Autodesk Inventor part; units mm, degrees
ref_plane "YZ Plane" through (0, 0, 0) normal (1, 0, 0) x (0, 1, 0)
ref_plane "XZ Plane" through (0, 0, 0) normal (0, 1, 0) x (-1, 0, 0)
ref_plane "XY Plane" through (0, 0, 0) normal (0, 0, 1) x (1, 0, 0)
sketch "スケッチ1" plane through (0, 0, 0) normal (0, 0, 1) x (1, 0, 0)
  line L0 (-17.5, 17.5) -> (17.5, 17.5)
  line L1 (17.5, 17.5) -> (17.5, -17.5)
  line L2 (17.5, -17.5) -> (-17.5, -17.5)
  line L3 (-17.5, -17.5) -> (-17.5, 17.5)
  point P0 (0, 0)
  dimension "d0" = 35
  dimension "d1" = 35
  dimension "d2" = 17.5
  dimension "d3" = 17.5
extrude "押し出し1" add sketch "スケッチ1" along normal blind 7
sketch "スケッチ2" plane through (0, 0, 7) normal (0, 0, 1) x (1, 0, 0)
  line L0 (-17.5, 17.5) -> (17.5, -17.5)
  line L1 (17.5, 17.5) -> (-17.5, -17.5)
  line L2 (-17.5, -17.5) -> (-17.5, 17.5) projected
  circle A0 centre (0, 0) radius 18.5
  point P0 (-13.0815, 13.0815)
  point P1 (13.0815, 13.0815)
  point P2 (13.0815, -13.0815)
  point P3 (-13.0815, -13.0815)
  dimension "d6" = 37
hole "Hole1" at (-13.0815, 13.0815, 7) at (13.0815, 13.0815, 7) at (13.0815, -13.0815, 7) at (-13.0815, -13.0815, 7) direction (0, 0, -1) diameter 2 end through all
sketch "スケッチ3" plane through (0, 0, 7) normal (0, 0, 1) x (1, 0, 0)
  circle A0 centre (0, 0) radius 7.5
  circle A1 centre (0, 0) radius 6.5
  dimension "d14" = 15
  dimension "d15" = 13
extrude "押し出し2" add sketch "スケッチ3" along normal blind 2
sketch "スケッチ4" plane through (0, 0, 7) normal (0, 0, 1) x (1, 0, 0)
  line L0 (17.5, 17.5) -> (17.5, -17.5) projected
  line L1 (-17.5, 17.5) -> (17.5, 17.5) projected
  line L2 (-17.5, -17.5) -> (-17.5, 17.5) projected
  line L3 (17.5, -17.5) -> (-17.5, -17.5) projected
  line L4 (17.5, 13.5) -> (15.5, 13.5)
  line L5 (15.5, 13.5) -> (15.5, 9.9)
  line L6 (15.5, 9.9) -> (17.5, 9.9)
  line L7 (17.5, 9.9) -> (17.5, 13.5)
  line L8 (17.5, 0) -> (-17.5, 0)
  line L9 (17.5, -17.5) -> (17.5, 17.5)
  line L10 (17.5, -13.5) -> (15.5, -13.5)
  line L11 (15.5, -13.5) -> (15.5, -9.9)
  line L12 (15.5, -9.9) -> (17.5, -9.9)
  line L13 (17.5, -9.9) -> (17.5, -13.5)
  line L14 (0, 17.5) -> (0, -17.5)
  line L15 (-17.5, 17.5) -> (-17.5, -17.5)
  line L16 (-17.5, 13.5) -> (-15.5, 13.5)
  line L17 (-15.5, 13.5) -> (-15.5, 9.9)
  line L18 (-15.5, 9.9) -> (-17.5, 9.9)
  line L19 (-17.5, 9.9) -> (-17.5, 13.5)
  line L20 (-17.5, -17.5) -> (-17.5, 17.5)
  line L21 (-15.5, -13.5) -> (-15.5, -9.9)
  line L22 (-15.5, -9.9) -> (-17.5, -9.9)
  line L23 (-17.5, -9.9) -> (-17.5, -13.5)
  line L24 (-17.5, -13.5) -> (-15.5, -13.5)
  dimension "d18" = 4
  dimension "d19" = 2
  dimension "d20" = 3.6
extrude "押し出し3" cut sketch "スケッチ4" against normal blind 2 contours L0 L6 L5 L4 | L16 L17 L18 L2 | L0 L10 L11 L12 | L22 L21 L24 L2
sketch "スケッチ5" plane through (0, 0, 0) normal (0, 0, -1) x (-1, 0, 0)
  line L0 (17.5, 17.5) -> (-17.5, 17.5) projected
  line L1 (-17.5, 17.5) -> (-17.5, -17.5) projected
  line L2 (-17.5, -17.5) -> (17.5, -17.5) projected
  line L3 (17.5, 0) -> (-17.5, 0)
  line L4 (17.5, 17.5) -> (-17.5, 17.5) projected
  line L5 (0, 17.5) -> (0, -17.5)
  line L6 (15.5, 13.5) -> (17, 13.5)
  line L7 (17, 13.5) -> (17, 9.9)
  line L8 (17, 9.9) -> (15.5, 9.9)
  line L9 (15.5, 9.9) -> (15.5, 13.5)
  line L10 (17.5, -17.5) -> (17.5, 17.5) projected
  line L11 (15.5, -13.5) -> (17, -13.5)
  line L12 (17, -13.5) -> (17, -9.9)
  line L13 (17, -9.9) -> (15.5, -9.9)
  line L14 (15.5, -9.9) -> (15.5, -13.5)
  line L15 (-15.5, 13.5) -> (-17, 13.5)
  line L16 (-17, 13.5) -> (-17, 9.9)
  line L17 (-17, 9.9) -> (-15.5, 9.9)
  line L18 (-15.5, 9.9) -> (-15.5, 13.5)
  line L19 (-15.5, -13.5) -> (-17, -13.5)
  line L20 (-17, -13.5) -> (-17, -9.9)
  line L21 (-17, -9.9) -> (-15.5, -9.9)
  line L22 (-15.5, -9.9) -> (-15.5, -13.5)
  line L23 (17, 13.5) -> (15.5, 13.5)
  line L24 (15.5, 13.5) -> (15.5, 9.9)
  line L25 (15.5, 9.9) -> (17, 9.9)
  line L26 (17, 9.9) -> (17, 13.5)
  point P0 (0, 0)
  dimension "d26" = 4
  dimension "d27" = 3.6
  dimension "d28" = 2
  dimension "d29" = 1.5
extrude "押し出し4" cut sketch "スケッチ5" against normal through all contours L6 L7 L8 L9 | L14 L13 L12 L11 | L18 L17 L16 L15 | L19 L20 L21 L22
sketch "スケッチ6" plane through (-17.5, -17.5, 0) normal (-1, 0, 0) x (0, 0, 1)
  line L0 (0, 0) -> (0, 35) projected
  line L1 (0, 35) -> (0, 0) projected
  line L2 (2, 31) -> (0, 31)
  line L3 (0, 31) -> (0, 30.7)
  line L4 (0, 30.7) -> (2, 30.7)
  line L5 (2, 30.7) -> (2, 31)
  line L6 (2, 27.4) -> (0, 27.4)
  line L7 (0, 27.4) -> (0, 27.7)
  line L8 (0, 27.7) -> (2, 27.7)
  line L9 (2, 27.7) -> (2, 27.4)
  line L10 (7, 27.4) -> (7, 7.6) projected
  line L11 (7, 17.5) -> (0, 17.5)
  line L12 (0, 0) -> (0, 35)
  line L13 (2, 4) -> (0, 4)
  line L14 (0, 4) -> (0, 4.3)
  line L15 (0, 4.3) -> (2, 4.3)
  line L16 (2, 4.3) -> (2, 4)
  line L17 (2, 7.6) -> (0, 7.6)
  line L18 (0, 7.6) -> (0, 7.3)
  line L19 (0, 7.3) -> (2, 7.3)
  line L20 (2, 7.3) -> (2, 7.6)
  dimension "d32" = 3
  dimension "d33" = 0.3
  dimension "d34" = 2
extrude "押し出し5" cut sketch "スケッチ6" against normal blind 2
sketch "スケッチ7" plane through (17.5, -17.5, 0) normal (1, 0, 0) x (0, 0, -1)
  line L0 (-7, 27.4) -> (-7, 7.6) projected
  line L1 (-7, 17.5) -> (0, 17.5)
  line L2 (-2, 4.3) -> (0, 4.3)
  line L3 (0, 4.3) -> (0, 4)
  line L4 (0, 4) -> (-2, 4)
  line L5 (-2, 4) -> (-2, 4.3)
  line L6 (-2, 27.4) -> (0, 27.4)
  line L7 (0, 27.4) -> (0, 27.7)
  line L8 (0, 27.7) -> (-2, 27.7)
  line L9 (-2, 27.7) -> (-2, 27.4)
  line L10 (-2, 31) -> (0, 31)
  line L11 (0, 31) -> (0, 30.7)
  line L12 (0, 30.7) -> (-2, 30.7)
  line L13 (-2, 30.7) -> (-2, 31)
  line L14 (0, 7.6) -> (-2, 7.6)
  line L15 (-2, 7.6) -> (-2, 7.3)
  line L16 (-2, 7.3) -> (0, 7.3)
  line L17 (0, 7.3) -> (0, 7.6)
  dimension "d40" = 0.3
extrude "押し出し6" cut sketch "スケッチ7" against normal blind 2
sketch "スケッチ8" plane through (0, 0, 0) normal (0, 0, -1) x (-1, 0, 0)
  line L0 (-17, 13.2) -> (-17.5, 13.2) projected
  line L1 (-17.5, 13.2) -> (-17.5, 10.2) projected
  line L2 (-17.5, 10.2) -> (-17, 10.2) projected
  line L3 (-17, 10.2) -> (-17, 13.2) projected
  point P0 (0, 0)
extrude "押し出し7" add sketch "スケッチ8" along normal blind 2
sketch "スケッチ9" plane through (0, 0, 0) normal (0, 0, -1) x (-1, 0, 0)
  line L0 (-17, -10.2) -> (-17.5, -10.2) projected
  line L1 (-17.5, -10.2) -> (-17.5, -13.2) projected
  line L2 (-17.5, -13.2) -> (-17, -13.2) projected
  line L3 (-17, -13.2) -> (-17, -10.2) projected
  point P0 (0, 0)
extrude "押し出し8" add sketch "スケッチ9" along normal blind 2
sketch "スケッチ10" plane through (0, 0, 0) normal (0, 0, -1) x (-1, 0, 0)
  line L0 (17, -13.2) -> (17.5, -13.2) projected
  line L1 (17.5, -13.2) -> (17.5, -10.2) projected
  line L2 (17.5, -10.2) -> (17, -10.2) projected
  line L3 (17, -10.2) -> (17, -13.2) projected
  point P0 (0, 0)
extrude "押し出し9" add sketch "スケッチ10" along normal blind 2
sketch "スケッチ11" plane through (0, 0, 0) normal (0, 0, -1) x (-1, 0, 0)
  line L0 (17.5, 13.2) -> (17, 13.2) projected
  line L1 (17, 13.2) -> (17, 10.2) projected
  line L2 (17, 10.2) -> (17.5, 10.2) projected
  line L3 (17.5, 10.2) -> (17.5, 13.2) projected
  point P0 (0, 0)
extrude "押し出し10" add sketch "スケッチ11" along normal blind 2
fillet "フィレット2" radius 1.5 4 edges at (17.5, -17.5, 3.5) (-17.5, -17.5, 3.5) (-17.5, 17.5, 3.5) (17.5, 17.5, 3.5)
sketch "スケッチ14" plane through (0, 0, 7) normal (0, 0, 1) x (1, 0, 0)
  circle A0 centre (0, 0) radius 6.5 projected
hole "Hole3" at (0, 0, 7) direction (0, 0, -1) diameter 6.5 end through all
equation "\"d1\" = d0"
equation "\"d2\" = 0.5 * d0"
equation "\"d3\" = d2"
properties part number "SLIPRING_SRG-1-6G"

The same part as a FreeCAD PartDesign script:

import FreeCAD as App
import Part
import Sketcher
Q = App.Units.Quantity


def edges_at(feature, points):
    """Names of the edges that pass closest to the given points."""
    edges = feature.Shape.Edges
    near = lambda p: min(range(len(edges)), key=lambda i: edges[i].distToShape(Part.Vertex(*p))[0])
    return sorted({f"Edge{near(p) + 1}" for p in points})

doc = App.newDocument("Part")
params = doc.addObject("Spreadsheet::Sheet", "Params")
for row, (alias, value) in enumerate([
    ("sketch1_width", "35 mm"),
    ("pad1_length", "7 mm"),
    ("sketch2_diameter", "2 mm"),
    ("hole_diameter", "2 mm"),
    ("sketch3_diameter", "15 mm"),
    ("sketch3_diameter2", "13 mm"),
    ("pad2_length", "2 mm"),
    ("sketch4_width", "2 mm"),
    ("sketch4_height", "3.6 mm"),
    ("pocket1_length", "2 mm"),
    ("sketch5_width", "1.5 mm"),
    ("sketch5_height", "3.6 mm"),
    ("sketch6_height", "2 mm"),
    ("sketch6_width", "0.3 mm"),
    ("pocket3_length", "2 mm"),
    ("sketch7_width", "0.3 mm"),
    ("sketch7_height", "2 mm"),
    ("pocket4_length", "2 mm"),
    ("sketch8_height", "3 mm"),
    ("sketch8_width", "0.5 mm"),
    ("pad3_length", "2 mm"),
    ("sketch9_height", "3 mm"),
    ("sketch9_width", "0.5 mm"),
    ("pad4_length", "2 mm"),
    ("sketch10_height", "3 mm"),
    ("sketch10_width", "0.5 mm"),
    ("pad5_length", "2 mm"),
    ("sketch11_height", "3 mm"),
    ("sketch11_width", "0.5 mm"),
    ("pad6_length", "2 mm"),
    ("fillet_radius", "1.5 mm"),
    ("sketch12_diameter", "6.5 mm"),
    ("hole2_diameter", "6.5 mm"),
], start=1):
    params.set(f"A{row}", alias)
    params.set(f"B{row}", "=" + value)
    params.setAlias(f"B{row}", alias)

body = doc.addObject("PartDesign::Body", "Body")

# Sketch on XY plane
sketch1 = body.newObject("Sketcher::SketchObject", "Sketch")
sketch1.AttachmentSupport = (doc.getObject("XY_Plane"), [""])
sketch1.MapMode = "FlatFace"
sketch1.addGeometry([
    Part.LineSegment(App.Vector(18, 18, 0), App.Vector(-18, 18, 0)),
    Part.LineSegment(App.Vector(-18, 18, 0), App.Vector(-18, -18, 0)),
    Part.LineSegment(App.Vector(-18, -18, 0), App.Vector(18, -18, 0)),
    Part.LineSegment(App.Vector(18, -18, 0), App.Vector(18, 18, 0)),
], False)
sketch1.addConstraint([
    Sketcher.Constraint("Coincident", 0, 2, 1, 1),
    Sketcher.Constraint("Coincident", 1, 2, 2, 1),
    Sketcher.Constraint("Coincident", 2, 2, 3, 1),
    Sketcher.Constraint("Coincident", 3, 2, 0, 1),
    Sketcher.Constraint("Horizontal", 0),
    Sketcher.Constraint("Vertical", 1),
    Sketcher.Constraint("Horizontal", 2),
    Sketcher.Constraint("Vertical", 3),
    Sketcher.Constraint("Symmetric", 0, 2, 2, 2, -1, 1),
    Sketcher.Constraint("Equal", 2, 1),
    Sketcher.Constraint("DistanceX", 0, 2, 0, 1, Q("35 mm")),
])
sketch1.setExpression("Constraints[10]", "Params.sketch1_width")
pad1 = body.newObject("PartDesign::Pad", "Pad")
pad1.Profile = sketch1
pad1.setExpression("Length", "Params.pad1_length")

# Sketch on XY plane
sketch2 = body.newObject("Sketcher::SketchObject", "Sketch001")
sketch2.AttachmentSupport = (doc.getObject("XY_Plane"), [""])
sketch2.MapMode = "FlatFace"
sketch2.AttachmentOffset = App.Placement(App.Vector(0, 0, 7), App.Rotation())
sketch2.addGeometry([
    Part.Circle(App.Vector(-13.1, 13.1, 0), App.Vector(0, 0, 1), 1),
    Part.Circle(App.Vector(13.1, 13.1, 0), App.Vector(0, 0, 1), 1),
    Part.Circle(App.Vector(13.1, -13.1, 0), App.Vector(0, 0, 1), 1),
    Part.Circle(App.Vector(-13.1, -13.1, 0), App.Vector(0, 0, 1), 1),
], False)
sketch2.addConstraint([
    Sketcher.Constraint("Equal", 0, 1),
    Sketcher.Constraint("Equal", 1, 2),
    Sketcher.Constraint("Equal", 2, 3),
    Sketcher.Constraint("Symmetric", 0, 3, 2, 3, -1, 1),
    Sketcher.Constraint("Symmetric", 1, 3, 3, 3, -1, 1),
    Sketcher.Constraint("Symmetric", 0, 3, 1, 3, -2),
    Sketcher.Constraint("Diameter", 0, Q("2 mm")),
    Sketcher.Constraint("DistanceX", 0, 3, 1, 3, Q("26.163 mm")),
    Sketcher.Constraint("DistanceY", 2, 3, 1, 3, Q("26.163 mm")),
])
sketch2.setExpression("Constraints[6]", "Params.sketch2_diameter")
doc.recompute()
hole = body.newObject("PartDesign::Hole", "Hole")
hole.Profile = sketch2
hole.ThreadType = "None"
hole.setExpression("Diameter", "Params.hole_diameter")
hole.DepthType = "ThroughAll"

# Sketch on XY plane
sketch3 = body.newObject("Sketcher::SketchObject", "Sketch002")
sketch3.AttachmentSupport = (doc.getObject("XY_Plane"), [""])
sketch3.MapMode = "FlatFace"
sketch3.AttachmentOffset = App.Placement(App.Vector(0, 0, 7), App.Rotation())
sketch3.addGeometry([
    Part.Circle(App.Vector(0, 0, 0), App.Vector(0, 0, 1), 8),
    Part.Circle(App.Vector(0, 0, 0), App.Vector(0, 0, 1), 6),
], False)
sketch3.addConstraint([
    Sketcher.Constraint("Coincident", 0, 3, -1, 1),
    Sketcher.Constraint("Coincident", 1, 3, -1, 1),
    Sketcher.Constraint("Diameter", 0, Q("15 mm")),
    Sketcher.Constraint("Diameter", 1, Q("13 mm")),
])
sketch3.setExpression("Constraints[2]", "Params.sketch3_diameter")
sketch3.setExpression("Constraints[3]", "Params.sketch3_diameter2")
pad2 = body.newObject("PartDesign::Pad", "Pad001")
pad2.Profile = sketch3
pad2.setExpression("Length", "Params.pad2_length")

# Sketch on XY plane
sketch4 = body.newObject("Sketcher::SketchObject", "Sketch003")
sketch4.AttachmentSupport = (doc.getObject("XY_Plane"), [""])
sketch4.MapMode = "FlatFace"
sketch4.AttachmentOffset = App.Placement(App.Vector(0, 0, 7), App.Rotation())
sketch4.addGeometry([
    Part.LineSegment(App.Vector(17.5, 9.9, 0), App.Vector(17.5, 13.5, 0)),  # 0
    Part.LineSegment(App.Vector(17.5, 13.5, 0), App.Vector(15.5, 13.5, 0)),  # 1
    Part.LineSegment(App.Vector(15.5, 13.5, 0), App.Vector(15.5, 9.9, 0)),  # 2
    Part.LineSegment(App.Vector(15.5, 9.9, 0), App.Vector(17.5, 9.9, 0)),  # 3
    Part.LineSegment(App.Vector(-15.5, 13.5, 0), App.Vector(-17.5, 13.5, 0)),  # 4
    Part.LineSegment(App.Vector(-17.5, 13.5, 0), App.Vector(-17.5, 9.9, 0)),  # 5
    Part.LineSegment(App.Vector(-17.5, 9.9, 0), App.Vector(-15.5, 9.9, 0)),  # 6
    Part.LineSegment(App.Vector(-15.5, 9.9, 0), App.Vector(-15.5, 13.5, 0)),  # 7
    Part.LineSegment(App.Vector(17.5, -13.5, 0), App.Vector(17.5, -9.9, 0)),  # 8
    Part.LineSegment(App.Vector(17.5, -9.9, 0), App.Vector(15.5, -9.9, 0)),  # 9
    Part.LineSegment(App.Vector(15.5, -9.9, 0), App.Vector(15.5, -13.5, 0)),  # 10
    Part.LineSegment(App.Vector(15.5, -13.5, 0), App.Vector(17.5, -13.5, 0)),  # 11
    Part.LineSegment(App.Vector(-15.5, -9.9, 0), App.Vector(-17.5, -9.9, 0)),  # 12
    Part.LineSegment(App.Vector(-17.5, -9.9, 0), App.Vector(-17.5, -13.5, 0)),  # 13
    Part.LineSegment(App.Vector(-17.5, -13.5, 0), App.Vector(-15.5, -13.5, 0)),  # 14
    Part.LineSegment(App.Vector(-15.5, -13.5, 0), App.Vector(-15.5, -9.9, 0)),  # 15
], False)
sketch4.addConstraint([
    Sketcher.Constraint("Coincident", 0, 2, 1, 1),
    Sketcher.Constraint("Coincident", 1, 2, 2, 1),
    Sketcher.Constraint("Coincident", 2, 2, 3, 1),
    Sketcher.Constraint("Coincident", 3, 2, 0, 1),
    Sketcher.Constraint("Coincident", 4, 2, 5, 1),
    Sketcher.Constraint("Coincident", 5, 2, 6, 1),
    Sketcher.Constraint("Coincident", 6, 2, 7, 1),
    Sketcher.Constraint("Coincident", 7, 2, 4, 1),
    Sketcher.Constraint("Coincident", 8, 2, 9, 1),
    Sketcher.Constraint("Coincident", 9, 2, 10, 1),
    Sketcher.Constraint("Coincident", 10, 2, 11, 1),
    Sketcher.Constraint("Coincident", 11, 2, 8, 1),
    Sketcher.Constraint("Coincident", 12, 2, 13, 1),
    Sketcher.Constraint("Coincident", 13, 2, 14, 1),
    Sketcher.Constraint("Coincident", 14, 2, 15, 1),
    Sketcher.Constraint("Coincident", 15, 2, 12, 1),
    Sketcher.Constraint("Vertical", 0),
    Sketcher.Constraint("Horizontal", 1),
    Sketcher.Constraint("Vertical", 2),
    Sketcher.Constraint("Horizontal", 3),
    Sketcher.Constraint("Horizontal", 4),
    Sketcher.Constraint("Vertical", 5),
    Sketcher.Constraint("Horizontal", 6),
    Sketcher.Constraint("Vertical", 7),
    Sketcher.Constraint("Vertical", 8),
    Sketcher.Constraint("Horizontal", 9),
    Sketcher.Constraint("Vertical", 10),
    Sketcher.Constraint("Horizontal", 11),
    Sketcher.Constraint("Horizontal", 12),
    Sketcher.Constraint("Vertical", 13),
    Sketcher.Constraint("Horizontal", 14),
    Sketcher.Constraint("Vertical", 15),
    Sketcher.Constraint("Symmetric", 5, 2, 8, 2, -1, 1),
    Sketcher.Constraint("Symmetric", 7, 2, 10, 2, -1, 1),
    Sketcher.Constraint("Symmetric", 3, 2, 12, 2, -1, 1),
    Sketcher.Constraint("Symmetric", 1, 2, 14, 2, -1, 1),
    Sketcher.Constraint("Symmetric", 0, 2, 4, 2, -2),
    Sketcher.Constraint("Symmetric", 2, 2, 6, 2, -2),
    Sketcher.Constraint("DistanceX", 1, 2, 1, 1, Q("2 mm")),
    Sketcher.Constraint("DistanceY", 0, 1, 0, 2, Q("3.6 mm")),
    Sketcher.Constraint("DistanceX", 4, 2, 1, 2, Q("33 mm")),
    Sketcher.Constraint("DistanceY", 10, 2, 1, 2, Q("27 mm")),
])
sketch4.setExpression("Constraints[38]", "Params.sketch4_width")
sketch4.setExpression("Constraints[39]", "Params.sketch4_height")
pocket1 = body.newObject("PartDesign::Pocket", "Pocket")
pocket1.Profile = sketch4
pocket1.setExpression("Length", "Params.pocket1_length")

# Sketch on XY plane
sketch5 = body.newObject("Sketcher::SketchObject", "Sketch004")
sketch5.AttachmentSupport = (doc.getObject("XY_Plane"), [""])
sketch5.MapMode = "FlatFace"
sketch5.addGeometry([
    Part.LineSegment(App.Vector(-17, 13.5, 0), App.Vector(-15.5, 13.5, 0)),  # 0
    Part.LineSegment(App.Vector(-15.5, 13.5, 0), App.Vector(-15.5, 9.9, 0)),  # 1
    Part.LineSegment(App.Vector(-15.5, 9.9, 0), App.Vector(-17, 9.9, 0)),  # 2
    Part.LineSegment(App.Vector(-17, 9.9, 0), App.Vector(-17, 13.5, 0)),  # 3
    Part.LineSegment(App.Vector(-15.5, -9.9, 0), App.Vector(-15.5, -13.5, 0)),  # 4
    Part.LineSegment(App.Vector(-15.5, -13.5, 0), App.Vector(-17, -13.5, 0)),  # 5
    Part.LineSegment(App.Vector(-17, -13.5, 0), App.Vector(-17, -9.9, 0)),  # 6
    Part.LineSegment(App.Vector(-17, -9.9, 0), App.Vector(-15.5, -9.9, 0)),  # 7
    Part.LineSegment(App.Vector(15.5, 9.9, 0), App.Vector(15.5, 13.5, 0)),  # 8
    Part.LineSegment(App.Vector(15.5, 13.5, 0), App.Vector(17, 13.5, 0)),  # 9
    Part.LineSegment(App.Vector(17, 13.5, 0), App.Vector(17, 9.9, 0)),  # 10
    Part.LineSegment(App.Vector(17, 9.9, 0), App.Vector(15.5, 9.9, 0)),  # 11
    Part.LineSegment(App.Vector(17, -13.5, 0), App.Vector(15.5, -13.5, 0)),  # 12
    Part.LineSegment(App.Vector(15.5, -13.5, 0), App.Vector(15.5, -9.9, 0)),  # 13
    Part.LineSegment(App.Vector(15.5, -9.9, 0), App.Vector(17, -9.9, 0)),  # 14
    Part.LineSegment(App.Vector(17, -9.9, 0), App.Vector(17, -13.5, 0)),  # 15
], False)
sketch5.addConstraint([
    Sketcher.Constraint("Coincident", 0, 2, 1, 1),
    Sketcher.Constraint("Coincident", 1, 2, 2, 1),
    Sketcher.Constraint("Coincident", 2, 2, 3, 1),
    Sketcher.Constraint("Coincident", 3, 2, 0, 1),
    Sketcher.Constraint("Coincident", 4, 2, 5, 1),
    Sketcher.Constraint("Coincident", 5, 2, 6, 1),
    Sketcher.Constraint("Coincident", 6, 2, 7, 1),
    Sketcher.Constraint("Coincident", 7, 2, 4, 1),
    Sketcher.Constraint("Coincident", 8, 2, 9, 1),
    Sketcher.Constraint("Coincident", 9, 2, 10, 1),
    Sketcher.Constraint("Coincident", 10, 2, 11, 1),
    Sketcher.Constraint("Coincident", 11, 2, 8, 1),
    Sketcher.Constraint("Coincident", 12, 2, 13, 1),
    Sketcher.Constraint("Coincident", 13, 2, 14, 1),
    Sketcher.Constraint("Coincident", 14, 2, 15, 1),
    Sketcher.Constraint("Coincident", 15, 2, 12, 1),
    Sketcher.Constraint("Horizontal", 0),
    Sketcher.Constraint("Vertical", 1),
    Sketcher.Constraint("Horizontal", 2),
    Sketcher.Constraint("Vertical", 3),
    Sketcher.Constraint("Vertical", 4),
    Sketcher.Constraint("Horizontal", 5),
    Sketcher.Constraint("Vertical", 6),
    Sketcher.Constraint("Horizontal", 7),
    Sketcher.Constraint("Vertical", 8),
    Sketcher.Constraint("Horizontal", 9),
    Sketcher.Constraint("Vertical", 10),
    Sketcher.Constraint("Horizontal", 11),
    Sketcher.Constraint("Horizontal", 12),
    Sketcher.Constraint("Vertical", 13),
    Sketcher.Constraint("Horizontal", 14),
    Sketcher.Constraint("Vertical", 15),
    Sketcher.Constraint("Symmetric", 4, 2, 8, 2, -1, 1),
    Sketcher.Constraint("Symmetric", 6, 2, 10, 2, -1, 1),
    Sketcher.Constraint("Symmetric", 0, 2, 12, 2, -1, 1),
    Sketcher.Constraint("Symmetric", 2, 2, 14, 2, -1, 1),
    Sketcher.Constraint("Symmetric", 0, 2, 8, 2, -2),
    Sketcher.Constraint("Symmetric", 2, 2, 10, 2, -2),
    Sketcher.Constraint("DistanceX", 0, 1, 0, 2, Q("1.5 mm")),
    Sketcher.Constraint("DistanceY", 1, 2, 1, 1, Q("3.6 mm")),
    Sketcher.Constraint("DistanceX", 2, 2, -1, 1, Q("17 mm")),
    Sketcher.Constraint("DistanceY", 4, 2, 0, 2, Q("27 mm")),
])
sketch5.setExpression("Constraints[38]", "Params.sketch5_width")
sketch5.setExpression("Constraints[39]", "Params.sketch5_height")
pocket2 = body.newObject("PartDesign::Pocket", "Pocket001")
pocket2.Profile = sketch5
pocket2.Type = "ThroughAll"
pocket2.Reversed = True

# Sketch on YZ plane
sketch6 = body.newObject("Sketcher::SketchObject", "Sketch005")
sketch6.AttachmentSupport = (doc.getObject("YZ_Plane"), [""])
sketch6.MapMode = "FlatFace"
sketch6.AttachmentOffset = App.Placement(App.Vector(0, 0, -17.5), App.Rotation())
sketch6.addGeometry([
    Part.LineSegment(App.Vector(13.5, 0, 0), App.Vector(13.2, 0, 0)),  # 0
    Part.LineSegment(App.Vector(13.2, 0, 0), App.Vector(13.2, 2, 0)),  # 1
    Part.LineSegment(App.Vector(13.2, 2, 0), App.Vector(13.5, 2, 0)),  # 2
    Part.LineSegment(App.Vector(13.5, 2, 0), App.Vector(13.5, 0, 0)),  # 3
    Part.LineSegment(App.Vector(10.2, 0, 0), App.Vector(9.9, 0, 0)),  # 4
    Part.LineSegment(App.Vector(9.9, 0, 0), App.Vector(9.9, 2, 0)),  # 5
    Part.LineSegment(App.Vector(9.9, 2, 0), App.Vector(10.2, 2, 0)),  # 6
    Part.LineSegment(App.Vector(10.2, 2, 0), App.Vector(10.2, 0, 0)),  # 7
    Part.LineSegment(App.Vector(-9.9, 0, 0), App.Vector(-10.2, 0, 0)),  # 8
    Part.LineSegment(App.Vector(-10.2, 0, 0), App.Vector(-10.2, 2, 0)),  # 9
    Part.LineSegment(App.Vector(-10.2, 2, 0), App.Vector(-9.9, 2, 0)),  # 10
    Part.LineSegment(App.Vector(-9.9, 2, 0), App.Vector(-9.9, 0, 0)),  # 11
    Part.LineSegment(App.Vector(-13.2, 0, 0), App.Vector(-13.5, 0, 0)),  # 12
    Part.LineSegment(App.Vector(-13.5, 0, 0), App.Vector(-13.5, 2, 0)),  # 13
    Part.LineSegment(App.Vector(-13.5, 2, 0), App.Vector(-13.2, 2, 0)),  # 14
    Part.LineSegment(App.Vector(-13.2, 2, 0), App.Vector(-13.2, 0, 0)),  # 15
], False)
sketch6.addConstraint([
    Sketcher.Constraint("Coincident", 0, 2, 1, 1),
    Sketcher.Constraint("Coincident", 1, 2, 2, 1),
    Sketcher.Constraint("Coincident", 2, 2, 3, 1),
    Sketcher.Constraint("Coincident", 3, 2, 0, 1),
    Sketcher.Constraint("Coincident", 4, 2, 5, 1),
    Sketcher.Constraint("Coincident", 5, 2, 6, 1),
    Sketcher.Constraint("Coincident", 6, 2, 7, 1),
    Sketcher.Constraint("Coincident", 7, 2, 4, 1),
    Sketcher.Constraint("Coincident", 8, 2, 9, 1),
    Sketcher.Constraint("Coincident", 9, 2, 10, 1),
    Sketcher.Constraint("Coincident", 10, 2, 11, 1),
    Sketcher.Constraint("Coincident", 11, 2, 8, 1),
    Sketcher.Constraint("Coincident", 12, 2, 13, 1),
    Sketcher.Constraint("Coincident", 13, 2, 14, 1),
    Sketcher.Constraint("Coincident", 14, 2, 15, 1),
    Sketcher.Constraint("Coincident", 15, 2, 12, 1),
    Sketcher.Constraint("Horizontal", 0),
    Sketcher.Constraint("Vertical", 1),
    Sketcher.Constraint("Horizontal", 2),
    Sketcher.Constraint("Vertical", 3),
    Sketcher.Constraint("Horizontal", 4),
    Sketcher.Constraint("Vertical", 5),
    Sketcher.Constraint("Horizontal", 6),
    Sketcher.Constraint("Vertical", 7),
    Sketcher.Constraint("Horizontal", 8),
    Sketcher.Constraint("Vertical", 9),
    Sketcher.Constraint("Horizontal", 10),
    Sketcher.Constraint("Vertical", 11),
    Sketcher.Constraint("Horizontal", 12),
    Sketcher.Constraint("Vertical", 13),
    Sketcher.Constraint("Horizontal", 14),
    Sketcher.Constraint("Vertical", 15),
    Sketcher.Constraint("Symmetric", 7, 2, 8, 2, -1, 1),
    Sketcher.Constraint("Symmetric", 3, 2, 12, 2, -1, 1),
    Sketcher.Constraint("Symmetric", 5, 2, 10, 2, -2),
    Sketcher.Constraint("Symmetric", 1, 2, 14, 2, -2),
    Sketcher.Constraint("PointOnObject", 0, 2, -1),
    Sketcher.Constraint("PointOnObject", 4, 2, -1),
    Sketcher.Constraint("Horizontal", 2, 2, 5, 2),
    Sketcher.Constraint("Equal", 2, 4),
    Sketcher.Constraint("DistanceY", 1, 1, 1, 2, Q("2 mm")),
    Sketcher.Constraint("DistanceX", 0, 2, 0, 1, Q("0.3 mm")),
    Sketcher.Constraint("DistanceX", 6, 2, 1, 2, Q("3 mm")),
    Sketcher.Constraint("DistanceX", -1, 1, 0, 2, Q("13.2 mm")),
])
sketch6.setExpression("Constraints[40]", "Params.sketch6_height")
sketch6.setExpression("Constraints[41]", "Params.sketch6_width")
pocket3 = body.newObject("PartDesign::Pocket", "Pocket002")
pocket3.Profile = sketch6
pocket3.setExpression("Length", "Params.pocket3_length")
pocket3.Reversed = True

# Sketch on YZ plane
sketch7 = body.newObject("Sketcher::SketchObject", "Sketch006")
sketch7.AttachmentSupport = (doc.getObject("YZ_Plane"), [""])
sketch7.MapMode = "FlatFace"
sketch7.AttachmentOffset = App.Placement(App.Vector(0, 0, 17.5), App.Rotation())
sketch7.addGeometry([
    Part.LineSegment(App.Vector(-13.2, 0, 0), App.Vector(-13.2, 2, 0)),  # 0
    Part.LineSegment(App.Vector(-13.2, 2, 0), App.Vector(-13.5, 2, 0)),  # 1
    Part.LineSegment(App.Vector(-13.5, 2, 0), App.Vector(-13.5, 0, 0)),  # 2
    Part.LineSegment(App.Vector(-13.5, 0, 0), App.Vector(-13.2, 0, 0)),  # 3
    Part.LineSegment(App.Vector(10.2, 2, 0), App.Vector(9.9, 2, 0)),  # 4
    Part.LineSegment(App.Vector(9.9, 2, 0), App.Vector(9.9, 0, 0)),  # 5
    Part.LineSegment(App.Vector(9.9, 0, 0), App.Vector(10.2, 0, 0)),  # 6
    Part.LineSegment(App.Vector(10.2, 0, 0), App.Vector(10.2, 2, 0)),  # 7
    Part.LineSegment(App.Vector(13.5, 0, 0), App.Vector(13.5, 2, 0)),  # 8
    Part.LineSegment(App.Vector(13.5, 2, 0), App.Vector(13.2, 2, 0)),  # 9
    Part.LineSegment(App.Vector(13.2, 2, 0), App.Vector(13.2, 0, 0)),  # 10
    Part.LineSegment(App.Vector(13.2, 0, 0), App.Vector(13.5, 0, 0)),  # 11
    Part.LineSegment(App.Vector(-10.2, 0, 0), App.Vector(-9.9, 0, 0)),  # 12
    Part.LineSegment(App.Vector(-9.9, 0, 0), App.Vector(-9.9, 2, 0)),  # 13
    Part.LineSegment(App.Vector(-9.9, 2, 0), App.Vector(-10.2, 2, 0)),  # 14
    Part.LineSegment(App.Vector(-10.2, 2, 0), App.Vector(-10.2, 0, 0)),  # 15
], False)
sketch7.addConstraint([
    Sketcher.Constraint("Coincident", 0, 2, 1, 1),
    Sketcher.Constraint("Coincident", 1, 2, 2, 1),
    Sketcher.Constraint("Coincident", 2, 2, 3, 1),
    Sketcher.Constraint("Coincident", 3, 2, 0, 1),
    Sketcher.Constraint("Coincident", 4, 2, 5, 1),
    Sketcher.Constraint("Coincident", 5, 2, 6, 1),
    Sketcher.Constraint("Coincident", 6, 2, 7, 1),
    Sketcher.Constraint("Coincident", 7, 2, 4, 1),
    Sketcher.Constraint("Coincident", 8, 2, 9, 1),
    Sketcher.Constraint("Coincident", 9, 2, 10, 1),
    Sketcher.Constraint("Coincident", 10, 2, 11, 1),
    Sketcher.Constraint("Coincident", 11, 2, 8, 1),
    Sketcher.Constraint("Coincident", 12, 2, 13, 1),
    Sketcher.Constraint("Coincident", 13, 2, 14, 1),
    Sketcher.Constraint("Coincident", 14, 2, 15, 1),
    Sketcher.Constraint("Coincident", 15, 2, 12, 1),
    Sketcher.Constraint("Vertical", 0),
    Sketcher.Constraint("Horizontal", 1),
    Sketcher.Constraint("Vertical", 2),
    Sketcher.Constraint("Horizontal", 3),
    Sketcher.Constraint("Horizontal", 4),
    Sketcher.Constraint("Vertical", 5),
    Sketcher.Constraint("Horizontal", 6),
    Sketcher.Constraint("Vertical", 7),
    Sketcher.Constraint("Vertical", 8),
    Sketcher.Constraint("Horizontal", 9),
    Sketcher.Constraint("Vertical", 10),
    Sketcher.Constraint("Horizontal", 11),
    Sketcher.Constraint("Horizontal", 12),
    Sketcher.Constraint("Vertical", 13),
    Sketcher.Constraint("Horizontal", 14),
    Sketcher.Constraint("Vertical", 15),
    Sketcher.Constraint("Symmetric", 3, 2, 10, 2, -1, 1),
    Sketcher.Constraint("Symmetric", 5, 2, 12, 2, -1, 1),
    Sketcher.Constraint("Symmetric", 1, 2, 8, 2, -2),
    Sketcher.Constraint("Symmetric", 7, 2, 14, 2, -2),
    Sketcher.Constraint("PointOnObject", 2, 2, -1),
    Sketcher.Constraint("PointOnObject", 5, 2, -1),
    Sketcher.Constraint("Horizontal", 1, 2, 4, 2),
    Sketcher.Constraint("Equal", 3, 4),
    Sketcher.Constraint("DistanceX", 1, 2, 1, 1, Q("0.3 mm")),
    Sketcher.Constraint("DistanceY", 0, 1, 0, 2, Q("2 mm")),
    Sketcher.Constraint("DistanceX", 7, 2, 9, 2, Q("3 mm")),
    Sketcher.Constraint("DistanceX", 0, 2, -1, 1, Q("13.2 mm")),
])
sketch7.setExpression("Constraints[40]", "Params.sketch7_width")
sketch7.setExpression("Constraints[41]", "Params.sketch7_height")
pocket4 = body.newObject("PartDesign::Pocket", "Pocket003")
pocket4.Profile = sketch7
pocket4.setExpression("Length", "Params.pocket4_length")

# Sketch on XY plane
sketch8 = body.newObject("Sketcher::SketchObject", "Sketch007")
sketch8.AttachmentSupport = (doc.getObject("XY_Plane"), [""])
sketch8.MapMode = "FlatFace"
sketch8.addGeometry([
    Part.LineSegment(App.Vector(17, 10.2, 0), App.Vector(17, 13.2, 0)),
    Part.LineSegment(App.Vector(17, 13.2, 0), App.Vector(17.5, 13.2, 0)),
    Part.LineSegment(App.Vector(17.5, 13.2, 0), App.Vector(17.5, 10.2, 0)),
    Part.LineSegment(App.Vector(17.5, 10.2, 0), App.Vector(17, 10.2, 0)),
], False)
sketch8.addConstraint([
    Sketcher.Constraint("Coincident", 0, 2, 1, 1),
    Sketcher.Constraint("Coincident", 1, 2, 2, 1),
    Sketcher.Constraint("Coincident", 2, 2, 3, 1),
    Sketcher.Constraint("Coincident", 3, 2, 0, 1),
    Sketcher.Constraint("Vertical", 0),
    Sketcher.Constraint("Horizontal", 1),
    Sketcher.Constraint("Vertical", 2),
    Sketcher.Constraint("Horizontal", 3),
    Sketcher.Constraint("DistanceY", 0, 1, 0, 2, Q("3 mm")),
    Sketcher.Constraint("DistanceX", 1, 1, 1, 2, Q("0.5 mm")),
    Sketcher.Constraint("DistanceX", -1, 1, 0, 2, Q("17 mm")),
    Sketcher.Constraint("DistanceY", -1, 1, 0, 2, Q("13.2 mm")),
])
sketch8.setExpression("Constraints[8]", "Params.sketch8_height")
sketch8.setExpression("Constraints[9]", "Params.sketch8_width")
pad3 = body.newObject("PartDesign::Pad", "Pad002")
pad3.Profile = sketch8
pad3.setExpression("Length", "Params.pad3_length")
pad3.Reversed = True

# Sketch on XY plane
sketch9 = body.newObject("Sketcher::SketchObject", "Sketch008")
sketch9.AttachmentSupport = (doc.getObject("XY_Plane"), [""])
sketch9.MapMode = "FlatFace"
sketch9.addGeometry([
    Part.LineSegment(App.Vector(17, -13.2, 0), App.Vector(17, -10.2, 0)),
    Part.LineSegment(App.Vector(17, -10.2, 0), App.Vector(17.5, -10.2, 0)),
    Part.LineSegment(App.Vector(17.5, -10.2, 0), App.Vector(17.5, -13.2, 0)),
    Part.LineSegment(App.Vector(17.5, -13.2, 0), App.Vector(17, -13.2, 0)),
], False)
sketch9.addConstraint([
    Sketcher.Constraint("Coincident", 0, 2, 1, 1),
    Sketcher.Constraint("Coincident", 1, 2, 2, 1),
    Sketcher.Constraint("Coincident", 2, 2, 3, 1),
    Sketcher.Constraint("Coincident", 3, 2, 0, 1),
    Sketcher.Constraint("Vertical", 0),
    Sketcher.Constraint("Horizontal", 1),
    Sketcher.Constraint("Vertical", 2),
    Sketcher.Constraint("Horizontal", 3),
    Sketcher.Constraint("DistanceY", 0, 1, 0, 2, Q("3 mm")),
    Sketcher.Constraint("DistanceX", 1, 1, 1, 2, Q("0.5 mm")),
    Sketcher.Constraint("DistanceX", -1, 1, 0, 2, Q("17 mm")),
    Sketcher.Constraint("DistanceY", 0, 2, -1, 1, Q("10.2 mm")),
])
sketch9.setExpression("Constraints[8]", "Params.sketch9_height")
sketch9.setExpression("Constraints[9]", "Params.sketch9_width")
pad4 = body.newObject("PartDesign::Pad", "Pad003")
pad4.Profile = sketch9
pad4.setExpression("Length", "Params.pad4_length")
pad4.Reversed = True

# Sketch on XY plane
sketch10 = body.newObject("Sketcher::SketchObject", "Sketch009")
sketch10.AttachmentSupport = (doc.getObject("XY_Plane"), [""])
sketch10.MapMode = "FlatFace"
sketch10.addGeometry([
    Part.LineSegment(App.Vector(-17, -10.2, 0), App.Vector(-17, -13.2, 0)),
    Part.LineSegment(App.Vector(-17, -13.2, 0), App.Vector(-17.5, -13.2, 0)),
    Part.LineSegment(App.Vector(-17.5, -13.2, 0), App.Vector(-17.5, -10.2, 0)),
    Part.LineSegment(App.Vector(-17.5, -10.2, 0), App.Vector(-17, -10.2, 0)),
], False)
sketch10.addConstraint([
    Sketcher.Constraint("Coincident", 0, 2, 1, 1),
    Sketcher.Constraint("Coincident", 1, 2, 2, 1),
    Sketcher.Constraint("Coincident", 2, 2, 3, 1),
    Sketcher.Constraint("Coincident", 3, 2, 0, 1),
    Sketcher.Constraint("Vertical", 0),
    Sketcher.Constraint("Horizontal", 1),
    Sketcher.Constraint("Vertical", 2),
    Sketcher.Constraint("Horizontal", 3),
    Sketcher.Constraint("DistanceY", 0, 2, 0, 1, Q("3 mm")),
    Sketcher.Constraint("DistanceX", 1, 2, 1, 1, Q("0.5 mm")),
    Sketcher.Constraint("DistanceX", 0, 2, -1, 1, Q("17 mm")),
    Sketcher.Constraint("DistanceY", 0, 2, -1, 1, Q("13.2 mm")),
])
sketch10.setExpression("Constraints[8]", "Params.sketch10_height")
sketch10.setExpression("Constraints[9]", "Params.sketch10_width")
pad5 = body.newObject("PartDesign::Pad", "Pad004")
pad5.Profile = sketch10
pad5.setExpression("Length", "Params.pad5_length")
pad5.Reversed = True

# Sketch on XY plane
sketch11 = body.newObject("Sketcher::SketchObject", "Sketch010")
sketch11.AttachmentSupport = (doc.getObject("XY_Plane"), [""])
sketch11.MapMode = "FlatFace"
sketch11.addGeometry([
    Part.LineSegment(App.Vector(-17.5, 10.2, 0), App.Vector(-17.5, 13.2, 0)),
    Part.LineSegment(App.Vector(-17.5, 13.2, 0), App.Vector(-17, 13.2, 0)),
    Part.LineSegment(App.Vector(-17, 13.2, 0), App.Vector(-17, 10.2, 0)),
    Part.LineSegment(App.Vector(-17, 10.2, 0), App.Vector(-17.5, 10.2, 0)),
], False)
sketch11.addConstraint([
    Sketcher.Constraint("Coincident", 0, 2, 1, 1),
    Sketcher.Constraint("Coincident", 1, 2, 2, 1),
    Sketcher.Constraint("Coincident", 2, 2, 3, 1),
    Sketcher.Constraint("Coincident", 3, 2, 0, 1),
    Sketcher.Constraint("Vertical", 0),
    Sketcher.Constraint("Horizontal", 1),
    Sketcher.Constraint("Vertical", 2),
    Sketcher.Constraint("Horizontal", 3),
    Sketcher.Constraint("DistanceY", 0, 1, 0, 2, Q("3 mm")),
    Sketcher.Constraint("DistanceX", 1, 1, 1, 2, Q("0.5 mm")),
    Sketcher.Constraint("DistanceX", 1, 2, -1, 1, Q("17 mm")),
    Sketcher.Constraint("DistanceY", -1, 1, 0, 2, Q("13.2 mm")),
])
sketch11.setExpression("Constraints[8]", "Params.sketch11_height")
sketch11.setExpression("Constraints[9]", "Params.sketch11_width")
pad6 = body.newObject("PartDesign::Pad", "Pad005")
pad6.Profile = sketch11
pad6.setExpression("Length", "Params.pad6_length")
pad6.Reversed = True
doc.recompute()

fillet = body.newObject("PartDesign::Fillet", "Fillet")
fillet.Base = (pad6, edges_at(pad6, [
    (17.5, -17.5, 3.5),
    (-17.5, -17.5, 3.5),
    (-17.5, 17.5, 3.5),
    (17.5, 17.5, 3.5),
]))
fillet.setExpression("Radius", "Params.fillet_radius")

# Sketch on XY plane
sketch12 = body.newObject("Sketcher::SketchObject", "Sketch011")
sketch12.AttachmentSupport = (doc.getObject("XY_Plane"), [""])
sketch12.MapMode = "FlatFace"
sketch12.AttachmentOffset = App.Placement(App.Vector(0, 0, 7), App.Rotation())
sketch12.addGeometry(Part.Circle(App.Vector(0, 0, 0), App.Vector(0, 0, 1), 3.2), False)
sketch12.addConstraint([
    Sketcher.Constraint("Coincident", 0, 3, -1, 1),
    Sketcher.Constraint("Diameter", 0, Q("6.5 mm")),
])
sketch12.setExpression("Constraints[1]", "Params.sketch12_diameter")
doc.recompute()
hole2 = body.newObject("PartDesign::Hole", "Hole001")
hole2.Profile = sketch12
hole2.ThreadType = "None"
hole2.setExpression("Diameter", "Params.hole2_diameter")
hole2.DepthType = "ThroughAll"

doc.recompute()
